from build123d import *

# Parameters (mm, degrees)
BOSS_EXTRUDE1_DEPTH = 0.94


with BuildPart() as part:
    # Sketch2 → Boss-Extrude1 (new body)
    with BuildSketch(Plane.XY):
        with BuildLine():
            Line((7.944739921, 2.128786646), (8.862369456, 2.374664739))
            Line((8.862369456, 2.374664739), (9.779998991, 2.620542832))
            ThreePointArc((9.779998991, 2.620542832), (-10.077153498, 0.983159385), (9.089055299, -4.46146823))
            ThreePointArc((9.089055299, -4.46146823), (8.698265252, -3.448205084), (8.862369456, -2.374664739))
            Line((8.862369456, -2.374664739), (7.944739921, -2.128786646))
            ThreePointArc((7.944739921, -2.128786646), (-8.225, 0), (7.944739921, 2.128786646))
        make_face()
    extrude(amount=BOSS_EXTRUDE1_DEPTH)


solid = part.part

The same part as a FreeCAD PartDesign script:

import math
import FreeCAD as App
import Part
import Sketcher
Q = App.Units.Quantity

doc = App.newDocument("Part")
body = doc.addObject("PartDesign::Body", "Body")

sketch1 = body.newObject("Sketcher::SketchObject", "Sketch")
sketch1.AttachmentSupport = (doc.getObject("XY_Plane"), [""])
sketch1.MapMode = "FlatFace"
sketch1.addGeometry(Part.LineSegment(App.Vector(7.9, 2.1, 0), App.Vector(9.8, 2.6, 0)), False)
sketch1.addGeometry(Part.ArcOfCircle(Part.Circle(App.Vector(0, 0, 0), App.Vector(0, 0, 1), 10.1), math.radians(15), math.radians(334)), False)
sketch1.addGeometry(Part.ArcOfCircle(Part.Circle(App.Vector(10.8, -3.2, 0), App.Vector(0, 0, 1), 2.1), math.radians(156), math.radians(216)), False)
sketch1.addGeometry(Part.LineSegment(App.Vector(8.9, -2.4, 0), App.Vector(7.9, -2.1, 0)), False)
sketch1.addGeometry(Part.ArcOfCircle(Part.Circle(App.Vector(0, 0, 0), App.Vector(0, 0, 1), 8.2), math.radians(15), math.radians(345)), False)
sketch1.addConstraint(Sketcher.Constraint("Coincident", 0, 2, 1, 1))
sketch1.addConstraint(Sketcher.Constraint("Coincident", 1, 2, 2, 2))
sketch1.addConstraint(Sketcher.Constraint("Coincident", 2, 1, 3, 1))
sketch1.addConstraint(Sketcher.Constraint("Coincident", 3, 2, 4, 2))
sketch1.addConstraint(Sketcher.Constraint("Coincident", 4, 1, 0, 1))
sketch1.addConstraint(Sketcher.Constraint("Coincident", 1, 3, -1, 1))
sketch1.addConstraint(Sketcher.Constraint("Coincident", 4, 3, -1, 1))
sketch1.addConstraint(Sketcher.Constraint("Vertical", 3, 2, 4, 1))
sketch1.addConstraint(Sketcher.Constraint("Angle", 0, Q("15 deg")))
sketch1.addConstraint(Sketcher.Constraint("Angle", 3, Q("165 deg")))
sketch1.addConstraint(Sketcher.Constraint("Radius", 1, 10.125))
sketch1.addConstraint(Sketcher.Constraint("Radius", 4, 8.225))
sketch1.addConstraint(Sketcher.Constraint("Distance", 3, 0.95))
sketch1.addConstraint(Sketcher.Constraint("DistanceX", -1, 1, 0, 2, 9.779999))
sketch1.addConstraint(Sketcher.Constraint("Radius", 2, 2.113054))
sketch1.addConstraint(Sketcher.Constraint("DistanceX", -1, 1, 2, 3, 10.798961))
pad1 = body.newObject("PartDesign::Pad", "Pad")
pad1.Profile = sketch1
pad1.Length = 0.94

doc.recompute()
